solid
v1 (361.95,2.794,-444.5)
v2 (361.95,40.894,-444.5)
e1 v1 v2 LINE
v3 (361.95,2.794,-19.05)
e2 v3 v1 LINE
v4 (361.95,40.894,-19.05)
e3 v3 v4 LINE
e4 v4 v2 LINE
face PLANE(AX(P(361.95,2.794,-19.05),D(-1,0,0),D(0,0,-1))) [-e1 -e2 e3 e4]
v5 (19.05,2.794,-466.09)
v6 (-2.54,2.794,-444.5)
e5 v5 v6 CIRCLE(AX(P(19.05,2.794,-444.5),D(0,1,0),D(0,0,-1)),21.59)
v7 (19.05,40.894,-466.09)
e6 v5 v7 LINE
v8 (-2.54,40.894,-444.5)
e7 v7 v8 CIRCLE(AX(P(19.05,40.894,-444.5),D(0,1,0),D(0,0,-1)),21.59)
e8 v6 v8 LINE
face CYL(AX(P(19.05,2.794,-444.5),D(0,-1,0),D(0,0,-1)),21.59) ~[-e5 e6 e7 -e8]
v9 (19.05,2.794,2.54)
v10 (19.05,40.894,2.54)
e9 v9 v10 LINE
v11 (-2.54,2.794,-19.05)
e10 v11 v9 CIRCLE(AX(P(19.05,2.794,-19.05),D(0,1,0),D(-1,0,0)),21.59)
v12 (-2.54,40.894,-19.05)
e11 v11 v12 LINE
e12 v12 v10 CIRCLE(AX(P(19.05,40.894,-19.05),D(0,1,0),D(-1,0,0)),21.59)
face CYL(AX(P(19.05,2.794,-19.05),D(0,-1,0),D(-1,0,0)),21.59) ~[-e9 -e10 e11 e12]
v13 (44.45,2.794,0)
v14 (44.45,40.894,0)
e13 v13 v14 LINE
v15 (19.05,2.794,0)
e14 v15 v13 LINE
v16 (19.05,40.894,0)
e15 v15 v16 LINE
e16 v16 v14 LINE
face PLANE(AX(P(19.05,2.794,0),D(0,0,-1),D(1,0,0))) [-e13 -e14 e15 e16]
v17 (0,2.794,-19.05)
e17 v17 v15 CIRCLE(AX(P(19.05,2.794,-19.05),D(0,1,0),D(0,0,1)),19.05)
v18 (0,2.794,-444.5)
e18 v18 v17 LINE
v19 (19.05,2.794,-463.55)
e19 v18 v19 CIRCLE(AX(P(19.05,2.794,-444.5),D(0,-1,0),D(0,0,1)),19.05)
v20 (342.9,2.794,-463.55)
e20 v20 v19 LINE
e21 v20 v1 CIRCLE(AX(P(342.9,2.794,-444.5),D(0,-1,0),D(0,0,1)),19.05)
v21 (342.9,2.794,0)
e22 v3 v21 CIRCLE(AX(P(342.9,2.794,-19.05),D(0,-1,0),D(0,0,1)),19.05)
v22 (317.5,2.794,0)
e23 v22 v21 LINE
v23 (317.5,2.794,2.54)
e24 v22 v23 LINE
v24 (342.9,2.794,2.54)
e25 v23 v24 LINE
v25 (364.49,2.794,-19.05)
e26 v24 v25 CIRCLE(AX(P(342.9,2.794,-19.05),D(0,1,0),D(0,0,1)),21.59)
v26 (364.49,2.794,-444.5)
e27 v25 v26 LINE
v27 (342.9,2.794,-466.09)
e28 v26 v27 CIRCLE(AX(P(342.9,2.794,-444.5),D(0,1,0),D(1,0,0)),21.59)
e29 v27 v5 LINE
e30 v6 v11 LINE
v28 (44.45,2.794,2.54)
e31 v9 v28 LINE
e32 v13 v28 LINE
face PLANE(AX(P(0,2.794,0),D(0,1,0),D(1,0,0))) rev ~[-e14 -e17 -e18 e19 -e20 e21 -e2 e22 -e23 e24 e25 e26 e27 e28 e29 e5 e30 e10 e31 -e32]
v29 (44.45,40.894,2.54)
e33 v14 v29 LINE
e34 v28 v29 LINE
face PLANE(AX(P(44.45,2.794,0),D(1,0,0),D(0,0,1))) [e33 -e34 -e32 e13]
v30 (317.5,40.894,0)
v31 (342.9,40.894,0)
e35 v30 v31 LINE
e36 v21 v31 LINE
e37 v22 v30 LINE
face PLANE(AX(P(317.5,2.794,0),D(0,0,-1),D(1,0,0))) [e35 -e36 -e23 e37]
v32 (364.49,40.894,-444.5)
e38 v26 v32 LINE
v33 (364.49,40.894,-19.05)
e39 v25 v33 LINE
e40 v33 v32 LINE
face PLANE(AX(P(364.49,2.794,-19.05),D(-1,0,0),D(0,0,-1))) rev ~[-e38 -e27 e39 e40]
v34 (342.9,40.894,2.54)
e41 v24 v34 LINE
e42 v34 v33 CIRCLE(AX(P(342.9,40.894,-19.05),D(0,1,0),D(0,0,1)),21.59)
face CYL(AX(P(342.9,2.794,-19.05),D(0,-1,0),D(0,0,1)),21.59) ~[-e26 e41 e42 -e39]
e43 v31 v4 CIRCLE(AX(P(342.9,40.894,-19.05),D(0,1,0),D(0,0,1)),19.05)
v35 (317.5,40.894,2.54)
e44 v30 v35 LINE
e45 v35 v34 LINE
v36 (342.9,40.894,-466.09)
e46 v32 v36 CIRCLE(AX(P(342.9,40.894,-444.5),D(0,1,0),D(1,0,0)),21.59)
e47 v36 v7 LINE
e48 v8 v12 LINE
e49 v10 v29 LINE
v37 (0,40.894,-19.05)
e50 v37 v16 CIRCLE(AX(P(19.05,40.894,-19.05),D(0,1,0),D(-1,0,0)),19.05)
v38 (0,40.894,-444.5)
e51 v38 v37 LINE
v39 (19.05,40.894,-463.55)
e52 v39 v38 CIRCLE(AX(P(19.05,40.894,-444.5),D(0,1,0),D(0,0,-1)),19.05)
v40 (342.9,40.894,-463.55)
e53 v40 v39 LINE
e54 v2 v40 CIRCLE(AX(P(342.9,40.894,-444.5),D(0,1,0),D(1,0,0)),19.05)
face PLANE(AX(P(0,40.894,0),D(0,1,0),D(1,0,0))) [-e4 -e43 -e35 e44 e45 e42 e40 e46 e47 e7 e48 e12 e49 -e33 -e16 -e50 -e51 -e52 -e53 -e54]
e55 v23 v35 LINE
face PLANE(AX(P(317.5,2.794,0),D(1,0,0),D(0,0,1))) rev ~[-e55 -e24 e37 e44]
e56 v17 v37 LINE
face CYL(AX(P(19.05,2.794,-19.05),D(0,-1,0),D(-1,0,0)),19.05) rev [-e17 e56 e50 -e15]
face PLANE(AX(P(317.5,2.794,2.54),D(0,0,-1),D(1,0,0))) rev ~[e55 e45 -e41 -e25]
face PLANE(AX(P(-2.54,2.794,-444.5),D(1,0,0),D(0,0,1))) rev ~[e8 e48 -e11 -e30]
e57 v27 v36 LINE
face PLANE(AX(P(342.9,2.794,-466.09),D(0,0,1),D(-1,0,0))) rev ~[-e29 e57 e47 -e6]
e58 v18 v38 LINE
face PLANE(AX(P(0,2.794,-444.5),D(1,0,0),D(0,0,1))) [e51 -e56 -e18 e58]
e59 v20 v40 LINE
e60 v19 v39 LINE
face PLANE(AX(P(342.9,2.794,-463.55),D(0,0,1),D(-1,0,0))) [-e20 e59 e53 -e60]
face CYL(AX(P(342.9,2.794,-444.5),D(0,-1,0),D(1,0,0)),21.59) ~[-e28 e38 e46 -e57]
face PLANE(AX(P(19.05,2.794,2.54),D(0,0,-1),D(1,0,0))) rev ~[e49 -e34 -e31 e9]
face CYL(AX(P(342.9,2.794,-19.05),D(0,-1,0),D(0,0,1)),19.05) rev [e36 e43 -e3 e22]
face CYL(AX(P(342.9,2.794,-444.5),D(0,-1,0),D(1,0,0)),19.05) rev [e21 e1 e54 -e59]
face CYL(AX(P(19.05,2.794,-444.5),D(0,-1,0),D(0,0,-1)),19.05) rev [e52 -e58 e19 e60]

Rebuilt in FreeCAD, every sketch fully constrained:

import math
import FreeCAD as App
import Part
import Sketcher
from FreeCAD import Vector
Q = App.Units.Quantity


def edges_at(feature, points):
    """Names of the edges that pass closest to the given points."""
    edges = feature.Shape.Edges
    near = lambda p: min(range(len(edges)), key=lambda i: edges[i].distToShape(Part.Vertex(*p))[0])
    return sorted({f"Edge{near(p) + 1}" for p in points})


def add_polygon(sketch, points):
    """Adds a closed chain of lines whose ends are joined by coincident constraints."""
    first, n = sketch.GeometryCount, len(points)
    for a, b in zip(points, points[1:] + points[:1]):
        sketch.addGeometry(Part.LineSegment(App.Vector(*a, 0), App.Vector(*b, 0)), False)
    for i in range(n):
        sketch.addConstraint(Sketcher.Constraint("Coincident", first + i, 2, first + (i + 1) % n, 1))

doc = App.newDocument("Part")
params = doc.addObject("Spreadsheet::Sheet", "Params")
for row, (alias, value) in enumerate([
    ("sketch1_width", "14.25 in"),
    ("sketch1_height", "18.25 in"),
    ("pad1_length", "0.11 in"),
    ("fillet_radius", "0.75 in"),
    ("sketch2_width", "10.75 in"),
    ("pad2_length", "1 in"),
    ("sketch3_diameter", "0.27 in"),
    ("pocket1_length", "1 in"),
    ("sketch4_height", "0.1 in"),
    ("sketch4_width", "1 in"),
    ("sketch4_radius", "0.75 in"),
    ("sketch4_width2", "12.75 in"),
    ("sketch4_height2", "16.75 in"),
    ("pad3_length", "1.5 in"),
    ("sketch5_radius", "0.75 in"),
    ("sketch5_width", "12.75 in"),
    ("sketch5_height", "16.75 in"),
    ("pocket2_length", "1.5 in"),
], start=1):
    params.set(f"A{row}", alias)
    params.set(f"B{row}", "=" + value)
    params.setAlias(f"B{row}", alias)

body = doc.addObject("PartDesign::Body", "Body")
body.AllowCompound = True

# Sketch on XZ plane
sketch1 = body.newObject("Sketcher::SketchObject", "Sketch")
sketch1.AttachmentSupport = (doc.getObject("XZ_Plane"), [""])
sketch1.MapMode = "FlatFace"
add_polygon(sketch1, [(0, -464), (0, 0), (362, 0), (362, -464)])  # lines 0-3
sketch1.addConstraint([
    Sketcher.Constraint("Vertical", 0),
    Sketcher.Constraint("Horizontal", 1),
    Sketcher.Constraint("Vertical", 2),
    Sketcher.Constraint("Horizontal", 3),
    Sketcher.Constraint("Coincident", 0, 2, -1, 1),
    Sketcher.Constraint("DistanceX", 1, 1, 1, 2, Q("14.25 in")),
    Sketcher.Constraint("DistanceY", 0, 1, 0, 2, Q("18.25 in")),
])
sketch1.setExpression("Constraints[9]", "Params.sketch1_width")
sketch1.setExpression("Constraints[10]", "Params.sketch1_height")
pad1 = body.newObject("PartDesign::Pad", "Pad")
pad1.Profile = sketch1
pad1.setExpression("Length", "Params.pad1_length")
pad1.Reversed = True
doc.recompute()

fillet = body.newObject("PartDesign::Fillet", "Fillet")
fillet.Base = (pad1, edges_at(pad1, [
    (361.95, 1.397, 0),
    (361.95, 1.397, -463.55),
    (0, 1.397, -463.55),
    (0, 1.397, 0),
]))
fillet.setExpression("Radius", "Params.fillet_radius")

# Sketch on XZ plane
sketch2 = body.newObject("Sketcher::SketchObject", "Sketch001")
sketch2.AttachmentSupport = (doc.getObject("XZ_Plane"), [""])
sketch2.MapMode = "FlatFace"
add_polygon(sketch2, [(317.5, 0), (44.5, 0), (44.5, -2.9), (317.5, -2.9)])  # lines 0-3
sketch2.addConstraint([
    Sketcher.Constraint("Horizontal", 0),
    Sketcher.Constraint("Vertical", 1),
    Sketcher.Constraint("Horizontal", 2),
    Sketcher.Constraint("Vertical", 3),
    Sketcher.Constraint("PointOnObject", 0, 2, -1),
    Sketcher.Constraint("DistanceX", 0, 2, 0, 1, Q("10.75 in")),
    Sketcher.Constraint("DistanceX", -1, 1, 2, 2, Q("12.5 in")),
    Sketcher.Constraint("DistanceY", 1, 2, 1, 1, Q("0.1123 in")),
])
sketch2.setExpression("Constraints[9]", "Params.sketch2_width")
pad2 = body.newObject("PartDesign::Pad", "Pad001")
pad2.Profile = sketch2
pad2.setExpression("Length", "Params.pad2_length")

# Sketch on XY plane
sketch3 = body.newObject("Sketcher::SketchObject", "Sketch002")
sketch3.AttachmentSupport = (doc.getObject("XY_Plane"), [""])
sketch3.MapMode = "FlatFace"
sketch3.addGeometry([
    Part.Circle(Vector(104.5, -12.7, 0), Vector(0, 0, 1), 3.4),
    Part.Circle(Vector(257.5, -12.7, 0), Vector(0, 0, 1), 3.4),
], False)
sketch3.addConstraint([
    Sketcher.Constraint("Equal", 0, 1),
    Sketcher.Constraint("Diameter", 0, Q("0.27 in")),
    Sketcher.Constraint("DistanceY", 1, 3, -1, 1, Q("0.5 in")),
    Sketcher.Constraint("DistanceX", -1, 1, 0, 3, Q("4.1122 in")),
    Sketcher.Constraint("DistanceX", -1, 1, 1, 3, Q("10.1378 in")),
    Sketcher.Constraint("DistanceY", 0, 3, -1, 1, 12.7238),
])
sketch3.setExpression("Constraints[1]", "Params.sketch3_diameter")
pocket1 = body.newObject("PartDesign::Pocket", "Pocket")
pocket1.Profile = sketch3
pocket1.setExpression("Length", "Params.pocket1_length")

# Sketch on XZ plane
sketch4 = body.newObject("Sketcher::SketchObject", "Sketch003")
sketch4.AttachmentSupport = (doc.getObject("XZ_Plane"), [""])
sketch4.MapMode = "FlatFace"
sketch4.AttachmentOffset = App.Placement(Vector(0, 0, -0.11 * 25.4), App.Rotation())
sketch4.addGeometry([
    Part.ArcOfCircle(Part.Circle(Vector(19.1, -19.1, 0), Vector(0, 0, 1), 19.1), math.radians(90), math.radians(180)),  # 0
    Part.LineSegment(Vector(0, -19.1, 0), Vector(0, -444.5, 0)),  # 1
    Part.ArcOfCircle(Part.Circle(Vector(19.1, -444.5, 0), Vector(0, 0, 1), 19.1), math.radians(180), math.radians(270)),  # 2
    Part.LineSegment(Vector(19.1, -463.6, 0), Vector(342.9, -463.6, 0)),  # 3
    Part.ArcOfCircle(Part.Circle(Vector(342.9, -444.5, 0), Vector(0, 0, 1), 19.1), math.radians(-90), math.radians(0)),  # 4
    Part.LineSegment(Vector(361.9, -444.5, 0), Vector(361.9, -19.1, 0)),  # 5
    Part.ArcOfCircle(Part.Circle(Vector(342.9, -19.1, 0), Vector(0, 0, 1), 19.1), math.radians(0), math.radians(90)),  # 6
    Part.LineSegment(Vector(342.9, 0, 0), Vector(317.5, 0, 0)),  # 7
    Part.LineSegment(Vector(317.5, 0, 0), Vector(317.5, 2.5, 0)),  # 8
    Part.LineSegment(Vector(317.5, 2.5, 0), Vector(342.9, 2.5, 0)),  # 9
    Part.ArcOfCircle(Part.Circle(Vector(342.9, -19.1, 0), Vector(0, 0, 1), 21.6), math.radians(0), math.radians(90)),  # 10
    Part.LineSegment(Vector(364.5, -19.1, 0), Vector(364.5, -444.5, 0)),  # 11
    Part.ArcOfCircle(Part.Circle(Vector(342.9, -444.5, 0), Vector(0, 0, 1), 21.6), math.radians(-90), math.radians(0)),  # 12
    Part.LineSegment(Vector(342.9, -466.1, 0), Vector(19.1, -466.1, 0)),  # 13
    Part.ArcOfCircle(Part.Circle(Vector(19.1, -444.5, 0), Vector(0, 0, 1), 21.6), math.radians(180), math.radians(270)),  # 14
    Part.LineSegment(Vector(-2.5, -444.5, 0), Vector(-2.5, -19.1, 0)),  # 15
    Part.ArcOfCircle(Part.Circle(Vector(19.1, -19.1, 0), Vector(0, 0, 1), 21.6), math.radians(90), math.radians(180)),  # 16
    Part.LineSegment(Vector(19.1, 2.5, 0), Vector(44.5, 2.5, 0)),  # 17
    Part.LineSegment(Vector(44.5, 2.5, 0), Vector(44.5, 0, 0)),  # 18
    Part.LineSegment(Vector(44.5, 0, 0), Vector(19.1, 0, 0)),  # 19
], False)
sketch4.addConstraint([
    Sketcher.Constraint("Tangent", 0, 2, 1, 1),
    Sketcher.Constraint("Tangent", 1, 2, 2, 1),
    Sketcher.Constraint("Tangent", 2, 2, 3, 1),
    Sketcher.Constraint("Tangent", 3, 2, 4, 1),
    Sketcher.Constraint("Tangent", 4, 2, 5, 1),
    Sketcher.Constraint("Tangent", 5, 2, 6, 1),
    Sketcher.Constraint("Tangent", 6, 2, 7, 1),
    Sketcher.Constraint("Coincident", 7, 2, 8, 1),
    Sketcher.Constraint("Coincident", 8, 2, 9, 1),
    Sketcher.Constraint("Tangent", 9, 2, 10, 2),
    Sketcher.Constraint("Tangent", 10, 1, 11, 1),
    Sketcher.Constraint("Tangent", 11, 2, 12, 2),
    Sketcher.Constraint("Tangent", 12, 1, 13, 1),
    Sketcher.Constraint("Tangent", 13, 2, 14, 2),
    Sketcher.Constraint("Tangent", 14, 1, 15, 1),
    Sketcher.Constraint("Tangent", 15, 2, 16, 2),
    Sketcher.Constraint("Tangent", 16, 1, 17, 1),
    Sketcher.Constraint("Coincident", 17, 2, 18, 1),
    Sketcher.Constraint("Coincident", 18, 2, 19, 1),
    Sketcher.Constraint("Tangent", 19, 2, 0, 1),
    Sketcher.Constraint("Vertical", 1),
    Sketcher.Constraint("Horizontal", 3),
    Sketcher.Constraint("Vertical", 5),
    Sketcher.Constraint("Horizontal", 7),
    Sketcher.Constraint("Vertical", 8),
    Sketcher.Constraint("Horizontal", 9),
    Sketcher.Constraint("Vertical", 11),
    Sketcher.Constraint("Horizontal", 13),
    Sketcher.Constraint("Vertical", 15),
    Sketcher.Constraint("Horizontal", 17),
    Sketcher.Constraint("Vertical", 18),
    Sketcher.Constraint("Horizontal", 19),
    Sketcher.Constraint("Coincident", 10, 3, 6, 3),
    Sketcher.Constraint("Coincident", 12, 3, 4, 3),
    Sketcher.Constraint("Coincident", 14, 3, 2, 3),
    Sketcher.Constraint("Coincident", 16, 3, 0, 3),
    Sketcher.Constraint("Equal", 0, 2),
    Sketcher.Constraint("Equal", 2, 4),
    Sketcher.Constraint("Equal", 4, 6),
    Sketcher.Constraint("PointOnObject", 0, 2, -2),
    Sketcher.Constraint("PointOnObject", 6, 2, -1),
    Sketcher.Constraint("PointOnObject", 18, 2, -1),
    Sketcher.Constraint("Equal", 9, 17),
    Sketcher.Constraint("DistanceY", 8, 1, 8, 2, Q("0.1 in")),
    Sketcher.Constraint("DistanceX", 7, 2, 7, 1, Q("1 in")),
    Sketcher.Constraint("Radius", 0, Q("0.75 in")),
    Sketcher.Constraint("DistanceX", 3, 1, 3, 2, Q("12.75 in")),
    Sketcher.Constraint("DistanceY", 1, 2, 1, 1, Q("16.75 in")),
])
sketch4.setExpression("Constraints[43]", "Params.sketch4_height")
sketch4.setExpression("Constraints[44]", "Params.sketch4_width")
sketch4.setExpression("Constraints[45]", "Params.sketch4_radius")
sketch4.setExpression("Constraints[46]", "Params.sketch4_width2")
sketch4.setExpression("Constraints[47]", "Params.sketch4_height2")
pad3 = body.newObject("PartDesign::Pad", "Pad002")
pad3.Profile = sketch4
pad3.setExpression("Length", "Params.pad3_length")
pad3.Reversed = True

# Sketch on XZ plane
sketch5 = body.newObject("Sketcher::SketchObject", "Sketch004")
sketch5.AttachmentSupport = (doc.getObject("XZ_Plane"), [""])
sketch5.MapMode = "FlatFace"
sketch5.AttachmentOffset = App.Placement(Vector(0, 0, -0.11 * 25.4), App.Rotation())
sketch5.addGeometry([
    Part.LineSegment(Vector(0, -444, 0), Vector(0, -19, 0)),  # 0
    Part.ArcOfCircle(Part.Circle(Vector(19, -19, 0), Vector(0, 0, 1), 19), math.radians(90), math.radians(180)),  # 1
    Part.LineSegment(Vector(19, 0, 0), Vector(343, 0, 0)),  # 2
    Part.ArcOfCircle(Part.Circle(Vector(343, -19, 0), Vector(0, 0, 1), 19), math.radians(0), math.radians(90)),  # 3
    Part.LineSegment(Vector(362, -19, 0), Vector(362, -444, 0)),  # 4
    Part.ArcOfCircle(Part.Circle(Vector(343, -444, 0), Vector(0, 0, 1), 19), math.radians(-90), math.radians(0)),  # 5
    Part.LineSegment(Vector(343, -464, 0), Vector(19, -464, 0)),  # 6
    Part.ArcOfCircle(Part.Circle(Vector(19, -444, 0), Vector(0, 0, 1), 19), math.radians(180), math.radians(270)),  # 7
], False)
sketch5.addConstraint([
    Sketcher.Constraint("Tangent", 0, 2, 1, 2),
    Sketcher.Constraint("Tangent", 1, 1, 2, 1),
    Sketcher.Constraint("Tangent", 2, 2, 3, 2),
    Sketcher.Constraint("Tangent", 3, 1, 4, 1),
    Sketcher.Constraint("Tangent", 4, 2, 5, 2),
    Sketcher.Constraint("Tangent", 5, 1, 6, 1),
    Sketcher.Constraint("Tangent", 6, 2, 7, 2),
    Sketcher.Constraint("Tangent", 7, 1, 0, 1),
    Sketcher.Constraint("Vertical", 0),
    Sketcher.Constraint("Horizontal", 2),
    Sketcher.Constraint("Vertical", 4),
    Sketcher.Constraint("Horizontal", 6),
    Sketcher.Constraint("Equal", 1, 3),
    Sketcher.Constraint("Equal", 3, 5),
    Sketcher.Constraint("Equal", 5, 7),
    Sketcher.Constraint("PointOnObject", 0, 2, -2),
    Sketcher.Constraint("PointOnObject", 1, 1, -1),
    Sketcher.Constraint("Radius", 1, Q("0.75 in")),
    Sketcher.Constraint("DistanceX", 2, 1, 2, 2, Q("12.75 in")),
    Sketcher.Constraint("DistanceY", 0, 1, 0, 2, Q("16.75 in")),
])
sketch5.setExpression("Constraints[17]", "Params.sketch5_radius")
sketch5.setExpression("Constraints[18]", "Params.sketch5_width")
sketch5.setExpression("Constraints[19]", "Params.sketch5_height")
pocket2 = body.newObject("PartDesign::Pocket", "Pocket001")
pocket2.Profile = sketch5
pocket2.setExpression("Length", "Params.pocket2_length")
pocket2.Reversed = True

doc.recompute()
